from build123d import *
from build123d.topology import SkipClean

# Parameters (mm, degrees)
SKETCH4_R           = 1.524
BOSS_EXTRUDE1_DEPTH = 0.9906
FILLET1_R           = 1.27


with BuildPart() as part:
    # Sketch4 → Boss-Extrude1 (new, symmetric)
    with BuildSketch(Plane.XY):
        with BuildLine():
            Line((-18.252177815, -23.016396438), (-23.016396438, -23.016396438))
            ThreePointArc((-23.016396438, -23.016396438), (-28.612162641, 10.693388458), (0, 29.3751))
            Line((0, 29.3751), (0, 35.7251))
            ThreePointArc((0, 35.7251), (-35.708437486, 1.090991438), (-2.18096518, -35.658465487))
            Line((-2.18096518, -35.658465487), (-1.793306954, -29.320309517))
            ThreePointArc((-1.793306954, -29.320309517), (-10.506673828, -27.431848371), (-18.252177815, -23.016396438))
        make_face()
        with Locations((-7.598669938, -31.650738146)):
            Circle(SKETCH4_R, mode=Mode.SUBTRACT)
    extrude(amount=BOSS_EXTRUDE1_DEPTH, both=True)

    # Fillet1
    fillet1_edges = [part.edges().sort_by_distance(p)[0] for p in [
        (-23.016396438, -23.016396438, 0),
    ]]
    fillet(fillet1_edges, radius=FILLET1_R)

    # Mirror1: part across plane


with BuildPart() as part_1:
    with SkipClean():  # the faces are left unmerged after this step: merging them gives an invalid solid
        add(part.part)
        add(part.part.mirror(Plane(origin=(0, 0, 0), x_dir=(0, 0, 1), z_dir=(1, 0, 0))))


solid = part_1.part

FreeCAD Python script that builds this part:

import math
import FreeCAD as App
import Part
import Sketcher
from FreeCAD import Vector
Q = App.Units.Quantity


def edges_at(feature, points):
    """Names of the edges that pass closest to the given points."""
    edges = feature.Shape.Edges
    near = lambda p: min(range(len(edges)), key=lambda i: edges[i].distToShape(Part.Vertex(*p))[0])
    return sorted({f"Edge{near(p) + 1}" for p in points})

doc = App.newDocument("Part")
body = doc.addObject("PartDesign::Body", "Body")

# Sketch on XY plane
sketch1 = doc.addObject("Sketcher::SketchObject", "Sketch")
body.addObject(sketch1)
sketch1.AttachmentSupport = (doc.XY_Plane, [""])
sketch1.MapMode = "FlatFace"
sketch1.addGeometry([
    Part.LineSegment(Vector(-18.3, -23, 0), Vector(-23, -23, 0)),  # 0
    Part.ArcOfCircle(Part.Circle(Vector(0, -1.9, 0), Vector(0, 0, 1), 31.3), math.radians(90), math.radians(223)),  # 1
    Part.LineSegment(Vector(0, 29.4, 0), Vector(0, 35.7, 0)),  # 2
    Part.ArcOfCircle(Part.Circle(Vector(0, 0, 0), Vector(0, 0, 1), 35.7), math.radians(90), math.radians(266)),  # 3
    Part.LineSegment(Vector(-2.2, -35.7, 0), Vector(-1.8, -29.3, 0)),  # 4
    Part.ArcOfCircle(Part.Circle(Vector(0, 0, 0), Vector(0, 0, 1), 29.4), math.radians(-128), math.radians(-94)),  # 5
    Part.Circle(Vector(-7.6, -31.7, 0), Vector(0, 0, 1), 1.5),  # 6
], False)
sketch1.addConstraint([
    Sketcher.Constraint("Coincident", 0, 2, 1, 2),
    Sketcher.Constraint("Coincident", 1, 1, 2, 1),
    Sketcher.Constraint("Coincident", 2, 2, 3, 1),
    Sketcher.Constraint("Coincident", 3, 2, 4, 1),
    Sketcher.Constraint("Coincident", 4, 2, 5, 2),
    Sketcher.Constraint("Coincident", 5, 1, 0, 1),
    Sketcher.Constraint("Horizontal", 0),
    Sketcher.Constraint("Vertical", 2),
    Sketcher.Constraint("Coincident", 3, 3, -1, 1),
    Sketcher.Constraint("Coincident", 5, 3, -1, 1),
    Sketcher.Constraint("PointOnObject", 1, 3, -2),
    Sketcher.Constraint("PointOnObject", 1, 1, -2),
    Sketcher.Constraint("Diameter", 6, Q("0.12 in")),
    Sketcher.Constraint("DistanceY", 2, 1, 2, 2, Q("0.25 in")),
    Sketcher.Constraint("Angle", 4, Q("86.5 deg")),
    Sketcher.Constraint("Radius", 3, Q("1.4065 in")),
    Sketcher.Constraint("Radius", 5, Q("1.1565 in")),
    Sketcher.Constraint("Radius", 1, Q("31.251478 mm")),
    Sketcher.Constraint("DistanceX", 0, 2, 0, 1, Q("4.764219 mm")),
    Sketcher.Constraint("DistanceX", 6, 3, -1, 1, Q("7.59867 mm")),
    Sketcher.Constraint("DistanceY", 6, 3, -1, 1, Q("31.650738 mm")),
    Sketcher.Constraint("DistanceY", 4, 2, -1, 1, Q("29.32031 mm")),
])
pad1 = doc.addObject("PartDesign::Pad", "Pad")
body.addObject(pad1)
pad1.Profile = sketch1
pad1.Length = Q("0.078 in")
pad1.Midplane = True
doc.recompute()

fillet = doc.addObject("PartDesign::Fillet", "Fillet")
body.addObject(fillet)
fillet.Base = (pad1, edges_at(pad1, [(-23.016, -23.016, 0)]))
fillet.Radius = Q("0.05 in")
body2 = doc.addObject("PartDesign::Body", "Body001")
doc.recompute()

body2.BaseFeature = body
doc.recompute()

mirroring = doc.addObject("Part::Mirroring", "Mirroring")
mirroring.Source = body
mirroring.Base = Vector(0, 0, 0)
mirroring.Normal = Vector(1, 0, 0)
body3 = doc.addObject("PartDesign::Body", "Body002")
body3.BaseFeature = mirroring
boolean = doc.addObject("PartDesign::Boolean", "Boolean")
body2.addObject(boolean)
boolean.Type = "Fuse"
boolean.addObjects([body3])
doc.recompute()
mirroring.Visibility = False

doc.recompute()
